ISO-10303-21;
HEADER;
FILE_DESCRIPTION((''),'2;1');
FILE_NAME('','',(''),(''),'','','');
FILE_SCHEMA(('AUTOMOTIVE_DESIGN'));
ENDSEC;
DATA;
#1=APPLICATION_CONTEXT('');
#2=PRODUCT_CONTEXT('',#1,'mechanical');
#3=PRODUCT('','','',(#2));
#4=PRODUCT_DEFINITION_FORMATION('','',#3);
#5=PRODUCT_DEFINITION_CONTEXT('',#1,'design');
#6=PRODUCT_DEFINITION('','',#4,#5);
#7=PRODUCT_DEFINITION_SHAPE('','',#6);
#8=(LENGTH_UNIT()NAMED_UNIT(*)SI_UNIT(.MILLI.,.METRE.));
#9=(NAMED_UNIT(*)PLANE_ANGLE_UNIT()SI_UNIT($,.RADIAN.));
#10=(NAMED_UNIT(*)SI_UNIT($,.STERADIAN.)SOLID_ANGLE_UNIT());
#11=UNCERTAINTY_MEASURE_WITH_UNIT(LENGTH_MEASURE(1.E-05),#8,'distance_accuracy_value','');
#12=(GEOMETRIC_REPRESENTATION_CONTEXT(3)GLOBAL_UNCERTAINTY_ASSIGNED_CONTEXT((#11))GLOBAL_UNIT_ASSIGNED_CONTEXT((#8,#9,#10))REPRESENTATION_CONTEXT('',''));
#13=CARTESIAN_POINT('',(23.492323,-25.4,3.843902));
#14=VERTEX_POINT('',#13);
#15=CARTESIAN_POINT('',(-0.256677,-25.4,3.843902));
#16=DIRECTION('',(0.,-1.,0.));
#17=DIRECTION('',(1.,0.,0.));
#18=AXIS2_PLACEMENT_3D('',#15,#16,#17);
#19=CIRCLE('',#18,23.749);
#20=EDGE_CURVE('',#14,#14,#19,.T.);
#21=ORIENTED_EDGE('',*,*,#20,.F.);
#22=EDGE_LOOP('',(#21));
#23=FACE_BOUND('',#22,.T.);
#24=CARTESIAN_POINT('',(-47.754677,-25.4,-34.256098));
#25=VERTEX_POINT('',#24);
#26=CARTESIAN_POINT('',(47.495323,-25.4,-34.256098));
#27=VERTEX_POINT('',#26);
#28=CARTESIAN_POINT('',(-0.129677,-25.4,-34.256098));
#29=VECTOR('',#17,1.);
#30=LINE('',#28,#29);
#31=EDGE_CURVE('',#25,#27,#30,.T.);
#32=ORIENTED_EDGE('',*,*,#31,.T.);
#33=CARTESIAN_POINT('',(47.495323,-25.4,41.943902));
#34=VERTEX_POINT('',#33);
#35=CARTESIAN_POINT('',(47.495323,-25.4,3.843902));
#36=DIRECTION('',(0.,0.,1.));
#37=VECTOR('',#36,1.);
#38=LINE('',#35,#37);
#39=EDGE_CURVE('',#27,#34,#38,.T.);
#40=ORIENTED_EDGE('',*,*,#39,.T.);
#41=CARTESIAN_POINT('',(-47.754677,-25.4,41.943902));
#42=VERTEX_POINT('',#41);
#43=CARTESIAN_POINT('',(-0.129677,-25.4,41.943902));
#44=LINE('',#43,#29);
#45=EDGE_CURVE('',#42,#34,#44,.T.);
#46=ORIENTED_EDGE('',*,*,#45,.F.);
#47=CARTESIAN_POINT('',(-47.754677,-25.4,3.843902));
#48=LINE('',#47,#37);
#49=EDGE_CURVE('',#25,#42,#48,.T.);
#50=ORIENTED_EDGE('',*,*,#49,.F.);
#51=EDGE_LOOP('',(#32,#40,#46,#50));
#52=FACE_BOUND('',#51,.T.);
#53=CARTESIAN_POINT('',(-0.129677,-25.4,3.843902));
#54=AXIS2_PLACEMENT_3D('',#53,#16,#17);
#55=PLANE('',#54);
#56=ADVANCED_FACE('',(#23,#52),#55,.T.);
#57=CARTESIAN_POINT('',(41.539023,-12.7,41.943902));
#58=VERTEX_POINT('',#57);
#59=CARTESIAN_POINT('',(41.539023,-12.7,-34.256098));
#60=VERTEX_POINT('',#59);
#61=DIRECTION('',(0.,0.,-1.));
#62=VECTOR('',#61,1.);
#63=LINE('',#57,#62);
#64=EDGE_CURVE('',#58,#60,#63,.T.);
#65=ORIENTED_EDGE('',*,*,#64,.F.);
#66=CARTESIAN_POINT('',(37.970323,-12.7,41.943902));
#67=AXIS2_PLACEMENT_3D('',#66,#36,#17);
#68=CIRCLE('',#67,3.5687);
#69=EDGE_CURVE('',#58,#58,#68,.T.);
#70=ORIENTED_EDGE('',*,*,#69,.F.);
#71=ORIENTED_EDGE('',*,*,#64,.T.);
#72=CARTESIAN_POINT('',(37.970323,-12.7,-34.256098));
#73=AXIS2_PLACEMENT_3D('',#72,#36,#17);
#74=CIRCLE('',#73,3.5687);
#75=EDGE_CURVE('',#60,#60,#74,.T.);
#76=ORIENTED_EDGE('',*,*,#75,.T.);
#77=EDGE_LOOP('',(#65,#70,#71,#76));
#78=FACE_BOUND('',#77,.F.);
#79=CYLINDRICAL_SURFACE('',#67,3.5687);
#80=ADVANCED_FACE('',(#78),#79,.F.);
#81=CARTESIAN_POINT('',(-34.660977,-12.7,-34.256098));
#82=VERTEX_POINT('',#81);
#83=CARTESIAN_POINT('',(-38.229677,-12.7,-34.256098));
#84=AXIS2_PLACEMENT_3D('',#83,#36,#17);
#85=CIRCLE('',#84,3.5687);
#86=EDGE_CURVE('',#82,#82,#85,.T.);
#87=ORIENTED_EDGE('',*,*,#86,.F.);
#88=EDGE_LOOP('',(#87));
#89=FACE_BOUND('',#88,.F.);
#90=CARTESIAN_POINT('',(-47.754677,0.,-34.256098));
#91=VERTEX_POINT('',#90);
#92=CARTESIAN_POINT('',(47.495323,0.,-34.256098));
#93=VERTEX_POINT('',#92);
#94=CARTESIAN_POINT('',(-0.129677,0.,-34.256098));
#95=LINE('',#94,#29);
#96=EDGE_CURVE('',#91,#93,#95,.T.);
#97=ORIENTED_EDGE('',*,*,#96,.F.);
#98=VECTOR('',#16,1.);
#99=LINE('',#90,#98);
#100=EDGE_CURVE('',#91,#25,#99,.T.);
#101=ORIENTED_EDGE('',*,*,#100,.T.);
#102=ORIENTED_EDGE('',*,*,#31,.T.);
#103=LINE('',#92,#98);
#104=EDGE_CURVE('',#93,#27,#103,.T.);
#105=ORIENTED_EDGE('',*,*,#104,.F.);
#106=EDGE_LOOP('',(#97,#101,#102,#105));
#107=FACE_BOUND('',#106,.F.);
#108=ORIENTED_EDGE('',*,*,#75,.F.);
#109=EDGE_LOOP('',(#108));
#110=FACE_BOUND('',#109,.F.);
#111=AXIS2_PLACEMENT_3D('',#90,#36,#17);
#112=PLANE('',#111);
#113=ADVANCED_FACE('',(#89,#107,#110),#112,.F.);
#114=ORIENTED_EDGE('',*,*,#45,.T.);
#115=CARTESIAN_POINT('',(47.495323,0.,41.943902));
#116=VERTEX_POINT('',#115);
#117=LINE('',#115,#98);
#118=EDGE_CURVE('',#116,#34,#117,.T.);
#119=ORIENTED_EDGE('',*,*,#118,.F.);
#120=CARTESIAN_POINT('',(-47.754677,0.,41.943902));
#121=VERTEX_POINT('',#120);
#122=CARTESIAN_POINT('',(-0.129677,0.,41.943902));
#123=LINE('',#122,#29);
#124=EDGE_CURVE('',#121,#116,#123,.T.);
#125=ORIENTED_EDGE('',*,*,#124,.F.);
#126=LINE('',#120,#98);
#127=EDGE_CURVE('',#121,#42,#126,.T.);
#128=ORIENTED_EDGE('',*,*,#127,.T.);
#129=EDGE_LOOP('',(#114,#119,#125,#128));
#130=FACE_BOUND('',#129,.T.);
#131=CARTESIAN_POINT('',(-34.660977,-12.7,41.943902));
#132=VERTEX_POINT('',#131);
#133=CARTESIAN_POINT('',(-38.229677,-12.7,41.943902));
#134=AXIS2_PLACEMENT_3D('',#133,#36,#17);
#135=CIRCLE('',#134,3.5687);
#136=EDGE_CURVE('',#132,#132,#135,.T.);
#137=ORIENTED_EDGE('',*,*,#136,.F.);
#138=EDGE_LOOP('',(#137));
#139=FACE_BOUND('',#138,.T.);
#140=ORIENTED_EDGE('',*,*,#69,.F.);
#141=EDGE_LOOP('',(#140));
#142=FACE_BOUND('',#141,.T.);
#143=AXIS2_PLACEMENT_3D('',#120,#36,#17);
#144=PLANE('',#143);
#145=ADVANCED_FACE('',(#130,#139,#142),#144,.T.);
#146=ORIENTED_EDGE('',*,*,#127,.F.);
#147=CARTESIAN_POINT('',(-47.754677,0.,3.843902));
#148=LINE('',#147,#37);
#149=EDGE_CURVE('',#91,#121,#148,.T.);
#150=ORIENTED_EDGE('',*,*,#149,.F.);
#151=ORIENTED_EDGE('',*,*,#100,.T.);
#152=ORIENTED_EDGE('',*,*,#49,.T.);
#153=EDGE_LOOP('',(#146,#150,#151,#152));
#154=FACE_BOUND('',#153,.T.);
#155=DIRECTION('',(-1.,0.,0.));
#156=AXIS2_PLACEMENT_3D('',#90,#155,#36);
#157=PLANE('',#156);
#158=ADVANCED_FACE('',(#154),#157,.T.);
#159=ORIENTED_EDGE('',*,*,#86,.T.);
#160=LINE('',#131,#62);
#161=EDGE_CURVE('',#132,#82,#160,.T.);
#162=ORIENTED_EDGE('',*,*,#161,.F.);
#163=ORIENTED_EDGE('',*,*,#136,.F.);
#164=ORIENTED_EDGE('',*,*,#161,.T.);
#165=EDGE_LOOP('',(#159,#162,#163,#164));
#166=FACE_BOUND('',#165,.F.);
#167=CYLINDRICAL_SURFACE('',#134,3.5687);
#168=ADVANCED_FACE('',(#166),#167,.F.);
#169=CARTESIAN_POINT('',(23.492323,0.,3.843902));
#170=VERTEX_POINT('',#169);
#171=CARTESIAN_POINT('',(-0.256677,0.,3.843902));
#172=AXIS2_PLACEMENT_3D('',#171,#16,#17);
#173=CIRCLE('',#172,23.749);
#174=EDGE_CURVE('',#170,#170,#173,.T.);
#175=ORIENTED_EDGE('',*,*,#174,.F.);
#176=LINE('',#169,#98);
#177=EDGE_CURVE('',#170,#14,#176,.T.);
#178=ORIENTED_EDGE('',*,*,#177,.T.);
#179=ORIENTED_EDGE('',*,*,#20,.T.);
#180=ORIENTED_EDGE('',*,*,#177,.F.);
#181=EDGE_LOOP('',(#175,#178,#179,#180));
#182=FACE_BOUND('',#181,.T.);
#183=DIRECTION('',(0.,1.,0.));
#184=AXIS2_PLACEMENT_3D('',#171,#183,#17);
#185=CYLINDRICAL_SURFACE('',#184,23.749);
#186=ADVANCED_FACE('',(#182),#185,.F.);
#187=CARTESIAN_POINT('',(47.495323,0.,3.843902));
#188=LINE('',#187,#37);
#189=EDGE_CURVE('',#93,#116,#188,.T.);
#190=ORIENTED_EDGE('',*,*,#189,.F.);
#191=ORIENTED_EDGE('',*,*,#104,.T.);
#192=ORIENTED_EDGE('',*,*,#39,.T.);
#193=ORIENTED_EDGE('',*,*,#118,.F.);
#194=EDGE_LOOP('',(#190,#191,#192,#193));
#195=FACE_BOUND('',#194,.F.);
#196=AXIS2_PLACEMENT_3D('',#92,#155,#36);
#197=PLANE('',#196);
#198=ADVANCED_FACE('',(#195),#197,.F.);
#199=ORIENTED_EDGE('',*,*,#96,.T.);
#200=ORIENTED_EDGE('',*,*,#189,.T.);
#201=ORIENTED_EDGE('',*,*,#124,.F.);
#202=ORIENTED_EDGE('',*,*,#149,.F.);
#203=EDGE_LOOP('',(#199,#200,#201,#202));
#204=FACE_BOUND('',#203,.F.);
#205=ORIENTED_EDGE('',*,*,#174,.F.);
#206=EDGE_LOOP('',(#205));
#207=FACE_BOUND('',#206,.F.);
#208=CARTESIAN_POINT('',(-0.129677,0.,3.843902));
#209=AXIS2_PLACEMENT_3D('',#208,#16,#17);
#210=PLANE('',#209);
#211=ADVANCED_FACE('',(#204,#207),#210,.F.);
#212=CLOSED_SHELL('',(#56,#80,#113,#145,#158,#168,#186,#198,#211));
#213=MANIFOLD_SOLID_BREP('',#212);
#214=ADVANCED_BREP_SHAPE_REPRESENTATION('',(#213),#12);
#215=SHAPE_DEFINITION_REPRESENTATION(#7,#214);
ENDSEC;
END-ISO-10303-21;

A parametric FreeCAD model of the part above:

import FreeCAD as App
import Part
import Sketcher
Q = App.Units.Quantity

doc = App.newDocument("Part")
params = doc.addObject("Spreadsheet::Sheet", "Params")
for row, (alias, value) in enumerate([
    ("sketch1_diameter", "1.87 in"),
    ("sketch1_height", "3 in"),
    ("sketch1_width", "3.75 in"),
    ("pad1_length", "1 in"),
    ("sketch2_diameter", "0.281 in"),
], start=1):
    params.set(f"A{row}", alias)
    params.set(f"B{row}", "=" + value)
    params.setAlias(f"B{row}", alias)

body = doc.addObject("PartDesign::Body", "Body")

# Sketch on XZ plane
sketch1 = body.newObject("Sketcher::SketchObject", "Sketch")
sketch1.AttachmentSupport = (doc.getObject("XZ_Plane"), [""])
sketch1.MapMode = "FlatFace"
sketch1.addGeometry(Part.LineSegment(App.Vector(-48, 42, 0), App.Vector(-48, -34, 0)), False)
sketch1.addGeometry(Part.LineSegment(App.Vector(-48, -34, 0), App.Vector(47, -34, 0)), False)
sketch1.addGeometry(Part.LineSegment(App.Vector(47, -34, 0), App.Vector(47, 42, 0)), False)
sketch1.addGeometry(Part.LineSegment(App.Vector(47, 42, 0), App.Vector(-48, 42, 0)), False)
sketch1.addGeometry(Part.Circle(App.Vector(0, 4, 0), App.Vector(0, 0, 1), 24), False)
sketch1.addConstraint(Sketcher.Constraint("Coincident", 0, 2, 1, 1))
sketch1.addConstraint(Sketcher.Constraint("Coincident", 1, 2, 2, 1))
sketch1.addConstraint(Sketcher.Constraint("Coincident", 2, 2, 3, 1))
sketch1.addConstraint(Sketcher.Constraint("Coincident", 3, 2, 0, 1))
sketch1.addConstraint(Sketcher.Constraint("Vertical", 0))
sketch1.addConstraint(Sketcher.Constraint("Horizontal", 1))
sketch1.addConstraint(Sketcher.Constraint("Vertical", 2))
sketch1.addConstraint(Sketcher.Constraint("Horizontal", 3))
sketch1.addConstraint(Sketcher.Constraint("Diameter", 4, Q("1.87 in")))
sketch1.addConstraint(Sketcher.Constraint("DistanceY", 0, 2, 0, 1, Q("3 in")))
sketch1.addConstraint(Sketcher.Constraint("DistanceX", 1, 1, 1, 2, Q("3.75 in")))
sketch1.addConstraint(Sketcher.Constraint("DistanceY", 0, 2, 4, 3, Q("1.5 in")))
sketch1.addConstraint(Sketcher.Constraint("DistanceX", 0, 2, 4, 3, Q("1.87 in")))
sketch1.addConstraint(Sketcher.Constraint("DistanceY", -1, 1, 4, 3, Q("3.843902 mm")))
sketch1.addConstraint(Sketcher.Constraint("DistanceX", 4, 3, -1, 1, Q("0.256677 mm")))
sketch1.setExpression("Constraints[8]", "Params.sketch1_diameter")
sketch1.setExpression("Constraints[9]", "Params.sketch1_height")
sketch1.setExpression("Constraints[10]", "Params.sketch1_width")
pad1 = body.newObject("PartDesign::Pad", "Pad")
pad1.Profile = sketch1
pad1.setExpression("Length", "Params.pad1_length")

# Sketch on XY plane
sketch2 = body.newObject("Sketcher::SketchObject", "Sketch001")
sketch2.AttachmentSupport = (doc.getObject("XY_Plane"), [""])
sketch2.MapMode = "FlatFace"
sketch2.AttachmentOffset = App.Placement(App.Vector(0, 0, 41.943902), App.Rotation())
sketch2.addGeometry(Part.Circle(App.Vector(-38.2, -12.7, 0), App.Vector(0, 0, 1), 3.6), False)
sketch2.addGeometry(Part.Circle(App.Vector(38, -12.7, 0), App.Vector(0, 0, 1), 3.6), False)
sketch2.addConstraint(Sketcher.Constraint("Equal", 0, 1))
sketch2.addConstraint(Sketcher.Constraint("Horizontal", 0, 3, 1, 3))
sketch2.addConstraint(Sketcher.Constraint("Diameter", 0, Q("0.281 in")))
sketch2.addConstraint(Sketcher.Constraint("DistanceX", 0, 3, 1, 3, Q("3 in")))
sketch2.addConstraint(Sketcher.Constraint("DistanceY", 0, 3, -1, 1, Q("0.5 in")))
sketch2.addConstraint(Sketcher.Constraint("DistanceX", 0, 3, -1, 1, Q("38.229677 mm")))
sketch2.setExpression("Constraints[2]", "Params.sketch2_diameter")
pocket1 = body.newObject("PartDesign::Pocket", "Pocket")
pocket1.Profile = sketch2
pocket1.Type = "ThroughAll"

doc.recompute()
